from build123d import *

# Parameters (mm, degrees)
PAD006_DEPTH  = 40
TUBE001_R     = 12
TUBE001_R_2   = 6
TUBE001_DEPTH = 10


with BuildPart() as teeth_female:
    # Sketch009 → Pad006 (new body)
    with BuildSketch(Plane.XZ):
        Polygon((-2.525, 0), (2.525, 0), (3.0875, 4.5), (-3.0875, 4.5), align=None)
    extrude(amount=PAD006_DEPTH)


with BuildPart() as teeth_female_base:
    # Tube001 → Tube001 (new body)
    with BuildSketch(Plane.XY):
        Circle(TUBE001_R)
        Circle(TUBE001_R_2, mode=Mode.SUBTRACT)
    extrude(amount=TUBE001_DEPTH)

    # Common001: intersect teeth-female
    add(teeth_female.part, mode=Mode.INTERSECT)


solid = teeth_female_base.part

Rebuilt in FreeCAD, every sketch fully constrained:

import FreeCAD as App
import Part
import Sketcher

doc = App.newDocument("Part")
params = doc.addObject("Spreadsheet::Sheet", "Params")
for row, (alias, value) in enumerate([
    ("sketch1_width", "5.05 mm"),
    ("pad1_length", "40 mm"),
    ("sketch2_diameter", "24 mm"),
    ("sketch2_diameter2", "12 mm"),
    ("pad2_length", "10 mm"),
], start=1):
    params.set(f"A{row}", alias)
    params.set(f"B{row}", "=" + value)
    params.setAlias(f"B{row}", alias)

body = doc.addObject("PartDesign::Body", "Body")

# Sketch on XZ plane
sketch1 = body.newObject("Sketcher::SketchObject", "Sketch")
sketch1.AttachmentSupport = (doc.getObject("XZ_Plane"), [""])
sketch1.MapMode = "FlatFace"
sketch1.addGeometry([
    Part.LineSegment(App.Vector(-2.5, 0, 0), App.Vector(2.5, 0, 0)),
    Part.LineSegment(App.Vector(2.5, 0, 0), App.Vector(3.1, 4.5, 0)),
    Part.LineSegment(App.Vector(3.1, 4.5, 0), App.Vector(-3.1, 4.5, 0)),
    Part.LineSegment(App.Vector(-3.1, 4.5, 0), App.Vector(-2.5, 0, 0)),
], False)
sketch1.addConstraint([
    Sketcher.Constraint("Coincident", 0, 2, 1, 1),
    Sketcher.Constraint("Coincident", 1, 2, 2, 1),
    Sketcher.Constraint("Coincident", 2, 2, 3, 1),
    Sketcher.Constraint("Coincident", 3, 2, 0, 1),
    Sketcher.Constraint("Horizontal", 0),
    Sketcher.Constraint("Horizontal", 2),
    Sketcher.Constraint("Symmetric", 0, 2, 3, 2, -1, 1),
    Sketcher.Constraint("Equal", 1, 3),
    Sketcher.Constraint("DistanceX", 0, 1, 0, 2, 5.05),
    Sketcher.Constraint("DistanceY", -1, 1, 1, 2, 4.5),
    Sketcher.Constraint("DistanceX", 2, 2, 2, 1, 6.175),
])
sketch1.setExpression("Constraints[8]", "Params.sketch1_width")
pad1 = body.newObject("PartDesign::Pad", "Pad")
pad1.Profile = sketch1
pad1.setExpression("Length", "Params.pad1_length")
body2 = doc.addObject("PartDesign::Body", "Body001")

# Sketch on XY plane
sketch2 = body2.newObject("Sketcher::SketchObject", "Sketch001")
sketch2.AttachmentSupport = (doc.getObject("XY_Plane001"), [""])
sketch2.MapMode = "FlatFace"
sketch2.addGeometry([
    Part.Circle(App.Vector(0, 0, 0), App.Vector(0, 0, 1), 12),
    Part.Circle(App.Vector(0, 0, 0), App.Vector(0, 0, 1), 6),
], False)
sketch2.addConstraint([
    Sketcher.Constraint("Coincident", 0, 3, -1, 1),
    Sketcher.Constraint("Coincident", 1, 3, -1, 1),
    Sketcher.Constraint("Diameter", 0, 24.0),
    Sketcher.Constraint("Diameter", 1, 12.0),
])
sketch2.setExpression("Constraints[2]", "Params.sketch2_diameter")
sketch2.setExpression("Constraints[3]", "Params.sketch2_diameter2")
pad2 = body2.newObject("PartDesign::Pad", "Pad001")
pad2.Profile = sketch2
pad2.setExpression("Length", "Params.pad2_length")
doc.recompute()

boolean = body2.newObject("PartDesign::Boolean", "Boolean")
boolean.Type = "Common"
boolean.addObjects([body])

doc.recompute()
